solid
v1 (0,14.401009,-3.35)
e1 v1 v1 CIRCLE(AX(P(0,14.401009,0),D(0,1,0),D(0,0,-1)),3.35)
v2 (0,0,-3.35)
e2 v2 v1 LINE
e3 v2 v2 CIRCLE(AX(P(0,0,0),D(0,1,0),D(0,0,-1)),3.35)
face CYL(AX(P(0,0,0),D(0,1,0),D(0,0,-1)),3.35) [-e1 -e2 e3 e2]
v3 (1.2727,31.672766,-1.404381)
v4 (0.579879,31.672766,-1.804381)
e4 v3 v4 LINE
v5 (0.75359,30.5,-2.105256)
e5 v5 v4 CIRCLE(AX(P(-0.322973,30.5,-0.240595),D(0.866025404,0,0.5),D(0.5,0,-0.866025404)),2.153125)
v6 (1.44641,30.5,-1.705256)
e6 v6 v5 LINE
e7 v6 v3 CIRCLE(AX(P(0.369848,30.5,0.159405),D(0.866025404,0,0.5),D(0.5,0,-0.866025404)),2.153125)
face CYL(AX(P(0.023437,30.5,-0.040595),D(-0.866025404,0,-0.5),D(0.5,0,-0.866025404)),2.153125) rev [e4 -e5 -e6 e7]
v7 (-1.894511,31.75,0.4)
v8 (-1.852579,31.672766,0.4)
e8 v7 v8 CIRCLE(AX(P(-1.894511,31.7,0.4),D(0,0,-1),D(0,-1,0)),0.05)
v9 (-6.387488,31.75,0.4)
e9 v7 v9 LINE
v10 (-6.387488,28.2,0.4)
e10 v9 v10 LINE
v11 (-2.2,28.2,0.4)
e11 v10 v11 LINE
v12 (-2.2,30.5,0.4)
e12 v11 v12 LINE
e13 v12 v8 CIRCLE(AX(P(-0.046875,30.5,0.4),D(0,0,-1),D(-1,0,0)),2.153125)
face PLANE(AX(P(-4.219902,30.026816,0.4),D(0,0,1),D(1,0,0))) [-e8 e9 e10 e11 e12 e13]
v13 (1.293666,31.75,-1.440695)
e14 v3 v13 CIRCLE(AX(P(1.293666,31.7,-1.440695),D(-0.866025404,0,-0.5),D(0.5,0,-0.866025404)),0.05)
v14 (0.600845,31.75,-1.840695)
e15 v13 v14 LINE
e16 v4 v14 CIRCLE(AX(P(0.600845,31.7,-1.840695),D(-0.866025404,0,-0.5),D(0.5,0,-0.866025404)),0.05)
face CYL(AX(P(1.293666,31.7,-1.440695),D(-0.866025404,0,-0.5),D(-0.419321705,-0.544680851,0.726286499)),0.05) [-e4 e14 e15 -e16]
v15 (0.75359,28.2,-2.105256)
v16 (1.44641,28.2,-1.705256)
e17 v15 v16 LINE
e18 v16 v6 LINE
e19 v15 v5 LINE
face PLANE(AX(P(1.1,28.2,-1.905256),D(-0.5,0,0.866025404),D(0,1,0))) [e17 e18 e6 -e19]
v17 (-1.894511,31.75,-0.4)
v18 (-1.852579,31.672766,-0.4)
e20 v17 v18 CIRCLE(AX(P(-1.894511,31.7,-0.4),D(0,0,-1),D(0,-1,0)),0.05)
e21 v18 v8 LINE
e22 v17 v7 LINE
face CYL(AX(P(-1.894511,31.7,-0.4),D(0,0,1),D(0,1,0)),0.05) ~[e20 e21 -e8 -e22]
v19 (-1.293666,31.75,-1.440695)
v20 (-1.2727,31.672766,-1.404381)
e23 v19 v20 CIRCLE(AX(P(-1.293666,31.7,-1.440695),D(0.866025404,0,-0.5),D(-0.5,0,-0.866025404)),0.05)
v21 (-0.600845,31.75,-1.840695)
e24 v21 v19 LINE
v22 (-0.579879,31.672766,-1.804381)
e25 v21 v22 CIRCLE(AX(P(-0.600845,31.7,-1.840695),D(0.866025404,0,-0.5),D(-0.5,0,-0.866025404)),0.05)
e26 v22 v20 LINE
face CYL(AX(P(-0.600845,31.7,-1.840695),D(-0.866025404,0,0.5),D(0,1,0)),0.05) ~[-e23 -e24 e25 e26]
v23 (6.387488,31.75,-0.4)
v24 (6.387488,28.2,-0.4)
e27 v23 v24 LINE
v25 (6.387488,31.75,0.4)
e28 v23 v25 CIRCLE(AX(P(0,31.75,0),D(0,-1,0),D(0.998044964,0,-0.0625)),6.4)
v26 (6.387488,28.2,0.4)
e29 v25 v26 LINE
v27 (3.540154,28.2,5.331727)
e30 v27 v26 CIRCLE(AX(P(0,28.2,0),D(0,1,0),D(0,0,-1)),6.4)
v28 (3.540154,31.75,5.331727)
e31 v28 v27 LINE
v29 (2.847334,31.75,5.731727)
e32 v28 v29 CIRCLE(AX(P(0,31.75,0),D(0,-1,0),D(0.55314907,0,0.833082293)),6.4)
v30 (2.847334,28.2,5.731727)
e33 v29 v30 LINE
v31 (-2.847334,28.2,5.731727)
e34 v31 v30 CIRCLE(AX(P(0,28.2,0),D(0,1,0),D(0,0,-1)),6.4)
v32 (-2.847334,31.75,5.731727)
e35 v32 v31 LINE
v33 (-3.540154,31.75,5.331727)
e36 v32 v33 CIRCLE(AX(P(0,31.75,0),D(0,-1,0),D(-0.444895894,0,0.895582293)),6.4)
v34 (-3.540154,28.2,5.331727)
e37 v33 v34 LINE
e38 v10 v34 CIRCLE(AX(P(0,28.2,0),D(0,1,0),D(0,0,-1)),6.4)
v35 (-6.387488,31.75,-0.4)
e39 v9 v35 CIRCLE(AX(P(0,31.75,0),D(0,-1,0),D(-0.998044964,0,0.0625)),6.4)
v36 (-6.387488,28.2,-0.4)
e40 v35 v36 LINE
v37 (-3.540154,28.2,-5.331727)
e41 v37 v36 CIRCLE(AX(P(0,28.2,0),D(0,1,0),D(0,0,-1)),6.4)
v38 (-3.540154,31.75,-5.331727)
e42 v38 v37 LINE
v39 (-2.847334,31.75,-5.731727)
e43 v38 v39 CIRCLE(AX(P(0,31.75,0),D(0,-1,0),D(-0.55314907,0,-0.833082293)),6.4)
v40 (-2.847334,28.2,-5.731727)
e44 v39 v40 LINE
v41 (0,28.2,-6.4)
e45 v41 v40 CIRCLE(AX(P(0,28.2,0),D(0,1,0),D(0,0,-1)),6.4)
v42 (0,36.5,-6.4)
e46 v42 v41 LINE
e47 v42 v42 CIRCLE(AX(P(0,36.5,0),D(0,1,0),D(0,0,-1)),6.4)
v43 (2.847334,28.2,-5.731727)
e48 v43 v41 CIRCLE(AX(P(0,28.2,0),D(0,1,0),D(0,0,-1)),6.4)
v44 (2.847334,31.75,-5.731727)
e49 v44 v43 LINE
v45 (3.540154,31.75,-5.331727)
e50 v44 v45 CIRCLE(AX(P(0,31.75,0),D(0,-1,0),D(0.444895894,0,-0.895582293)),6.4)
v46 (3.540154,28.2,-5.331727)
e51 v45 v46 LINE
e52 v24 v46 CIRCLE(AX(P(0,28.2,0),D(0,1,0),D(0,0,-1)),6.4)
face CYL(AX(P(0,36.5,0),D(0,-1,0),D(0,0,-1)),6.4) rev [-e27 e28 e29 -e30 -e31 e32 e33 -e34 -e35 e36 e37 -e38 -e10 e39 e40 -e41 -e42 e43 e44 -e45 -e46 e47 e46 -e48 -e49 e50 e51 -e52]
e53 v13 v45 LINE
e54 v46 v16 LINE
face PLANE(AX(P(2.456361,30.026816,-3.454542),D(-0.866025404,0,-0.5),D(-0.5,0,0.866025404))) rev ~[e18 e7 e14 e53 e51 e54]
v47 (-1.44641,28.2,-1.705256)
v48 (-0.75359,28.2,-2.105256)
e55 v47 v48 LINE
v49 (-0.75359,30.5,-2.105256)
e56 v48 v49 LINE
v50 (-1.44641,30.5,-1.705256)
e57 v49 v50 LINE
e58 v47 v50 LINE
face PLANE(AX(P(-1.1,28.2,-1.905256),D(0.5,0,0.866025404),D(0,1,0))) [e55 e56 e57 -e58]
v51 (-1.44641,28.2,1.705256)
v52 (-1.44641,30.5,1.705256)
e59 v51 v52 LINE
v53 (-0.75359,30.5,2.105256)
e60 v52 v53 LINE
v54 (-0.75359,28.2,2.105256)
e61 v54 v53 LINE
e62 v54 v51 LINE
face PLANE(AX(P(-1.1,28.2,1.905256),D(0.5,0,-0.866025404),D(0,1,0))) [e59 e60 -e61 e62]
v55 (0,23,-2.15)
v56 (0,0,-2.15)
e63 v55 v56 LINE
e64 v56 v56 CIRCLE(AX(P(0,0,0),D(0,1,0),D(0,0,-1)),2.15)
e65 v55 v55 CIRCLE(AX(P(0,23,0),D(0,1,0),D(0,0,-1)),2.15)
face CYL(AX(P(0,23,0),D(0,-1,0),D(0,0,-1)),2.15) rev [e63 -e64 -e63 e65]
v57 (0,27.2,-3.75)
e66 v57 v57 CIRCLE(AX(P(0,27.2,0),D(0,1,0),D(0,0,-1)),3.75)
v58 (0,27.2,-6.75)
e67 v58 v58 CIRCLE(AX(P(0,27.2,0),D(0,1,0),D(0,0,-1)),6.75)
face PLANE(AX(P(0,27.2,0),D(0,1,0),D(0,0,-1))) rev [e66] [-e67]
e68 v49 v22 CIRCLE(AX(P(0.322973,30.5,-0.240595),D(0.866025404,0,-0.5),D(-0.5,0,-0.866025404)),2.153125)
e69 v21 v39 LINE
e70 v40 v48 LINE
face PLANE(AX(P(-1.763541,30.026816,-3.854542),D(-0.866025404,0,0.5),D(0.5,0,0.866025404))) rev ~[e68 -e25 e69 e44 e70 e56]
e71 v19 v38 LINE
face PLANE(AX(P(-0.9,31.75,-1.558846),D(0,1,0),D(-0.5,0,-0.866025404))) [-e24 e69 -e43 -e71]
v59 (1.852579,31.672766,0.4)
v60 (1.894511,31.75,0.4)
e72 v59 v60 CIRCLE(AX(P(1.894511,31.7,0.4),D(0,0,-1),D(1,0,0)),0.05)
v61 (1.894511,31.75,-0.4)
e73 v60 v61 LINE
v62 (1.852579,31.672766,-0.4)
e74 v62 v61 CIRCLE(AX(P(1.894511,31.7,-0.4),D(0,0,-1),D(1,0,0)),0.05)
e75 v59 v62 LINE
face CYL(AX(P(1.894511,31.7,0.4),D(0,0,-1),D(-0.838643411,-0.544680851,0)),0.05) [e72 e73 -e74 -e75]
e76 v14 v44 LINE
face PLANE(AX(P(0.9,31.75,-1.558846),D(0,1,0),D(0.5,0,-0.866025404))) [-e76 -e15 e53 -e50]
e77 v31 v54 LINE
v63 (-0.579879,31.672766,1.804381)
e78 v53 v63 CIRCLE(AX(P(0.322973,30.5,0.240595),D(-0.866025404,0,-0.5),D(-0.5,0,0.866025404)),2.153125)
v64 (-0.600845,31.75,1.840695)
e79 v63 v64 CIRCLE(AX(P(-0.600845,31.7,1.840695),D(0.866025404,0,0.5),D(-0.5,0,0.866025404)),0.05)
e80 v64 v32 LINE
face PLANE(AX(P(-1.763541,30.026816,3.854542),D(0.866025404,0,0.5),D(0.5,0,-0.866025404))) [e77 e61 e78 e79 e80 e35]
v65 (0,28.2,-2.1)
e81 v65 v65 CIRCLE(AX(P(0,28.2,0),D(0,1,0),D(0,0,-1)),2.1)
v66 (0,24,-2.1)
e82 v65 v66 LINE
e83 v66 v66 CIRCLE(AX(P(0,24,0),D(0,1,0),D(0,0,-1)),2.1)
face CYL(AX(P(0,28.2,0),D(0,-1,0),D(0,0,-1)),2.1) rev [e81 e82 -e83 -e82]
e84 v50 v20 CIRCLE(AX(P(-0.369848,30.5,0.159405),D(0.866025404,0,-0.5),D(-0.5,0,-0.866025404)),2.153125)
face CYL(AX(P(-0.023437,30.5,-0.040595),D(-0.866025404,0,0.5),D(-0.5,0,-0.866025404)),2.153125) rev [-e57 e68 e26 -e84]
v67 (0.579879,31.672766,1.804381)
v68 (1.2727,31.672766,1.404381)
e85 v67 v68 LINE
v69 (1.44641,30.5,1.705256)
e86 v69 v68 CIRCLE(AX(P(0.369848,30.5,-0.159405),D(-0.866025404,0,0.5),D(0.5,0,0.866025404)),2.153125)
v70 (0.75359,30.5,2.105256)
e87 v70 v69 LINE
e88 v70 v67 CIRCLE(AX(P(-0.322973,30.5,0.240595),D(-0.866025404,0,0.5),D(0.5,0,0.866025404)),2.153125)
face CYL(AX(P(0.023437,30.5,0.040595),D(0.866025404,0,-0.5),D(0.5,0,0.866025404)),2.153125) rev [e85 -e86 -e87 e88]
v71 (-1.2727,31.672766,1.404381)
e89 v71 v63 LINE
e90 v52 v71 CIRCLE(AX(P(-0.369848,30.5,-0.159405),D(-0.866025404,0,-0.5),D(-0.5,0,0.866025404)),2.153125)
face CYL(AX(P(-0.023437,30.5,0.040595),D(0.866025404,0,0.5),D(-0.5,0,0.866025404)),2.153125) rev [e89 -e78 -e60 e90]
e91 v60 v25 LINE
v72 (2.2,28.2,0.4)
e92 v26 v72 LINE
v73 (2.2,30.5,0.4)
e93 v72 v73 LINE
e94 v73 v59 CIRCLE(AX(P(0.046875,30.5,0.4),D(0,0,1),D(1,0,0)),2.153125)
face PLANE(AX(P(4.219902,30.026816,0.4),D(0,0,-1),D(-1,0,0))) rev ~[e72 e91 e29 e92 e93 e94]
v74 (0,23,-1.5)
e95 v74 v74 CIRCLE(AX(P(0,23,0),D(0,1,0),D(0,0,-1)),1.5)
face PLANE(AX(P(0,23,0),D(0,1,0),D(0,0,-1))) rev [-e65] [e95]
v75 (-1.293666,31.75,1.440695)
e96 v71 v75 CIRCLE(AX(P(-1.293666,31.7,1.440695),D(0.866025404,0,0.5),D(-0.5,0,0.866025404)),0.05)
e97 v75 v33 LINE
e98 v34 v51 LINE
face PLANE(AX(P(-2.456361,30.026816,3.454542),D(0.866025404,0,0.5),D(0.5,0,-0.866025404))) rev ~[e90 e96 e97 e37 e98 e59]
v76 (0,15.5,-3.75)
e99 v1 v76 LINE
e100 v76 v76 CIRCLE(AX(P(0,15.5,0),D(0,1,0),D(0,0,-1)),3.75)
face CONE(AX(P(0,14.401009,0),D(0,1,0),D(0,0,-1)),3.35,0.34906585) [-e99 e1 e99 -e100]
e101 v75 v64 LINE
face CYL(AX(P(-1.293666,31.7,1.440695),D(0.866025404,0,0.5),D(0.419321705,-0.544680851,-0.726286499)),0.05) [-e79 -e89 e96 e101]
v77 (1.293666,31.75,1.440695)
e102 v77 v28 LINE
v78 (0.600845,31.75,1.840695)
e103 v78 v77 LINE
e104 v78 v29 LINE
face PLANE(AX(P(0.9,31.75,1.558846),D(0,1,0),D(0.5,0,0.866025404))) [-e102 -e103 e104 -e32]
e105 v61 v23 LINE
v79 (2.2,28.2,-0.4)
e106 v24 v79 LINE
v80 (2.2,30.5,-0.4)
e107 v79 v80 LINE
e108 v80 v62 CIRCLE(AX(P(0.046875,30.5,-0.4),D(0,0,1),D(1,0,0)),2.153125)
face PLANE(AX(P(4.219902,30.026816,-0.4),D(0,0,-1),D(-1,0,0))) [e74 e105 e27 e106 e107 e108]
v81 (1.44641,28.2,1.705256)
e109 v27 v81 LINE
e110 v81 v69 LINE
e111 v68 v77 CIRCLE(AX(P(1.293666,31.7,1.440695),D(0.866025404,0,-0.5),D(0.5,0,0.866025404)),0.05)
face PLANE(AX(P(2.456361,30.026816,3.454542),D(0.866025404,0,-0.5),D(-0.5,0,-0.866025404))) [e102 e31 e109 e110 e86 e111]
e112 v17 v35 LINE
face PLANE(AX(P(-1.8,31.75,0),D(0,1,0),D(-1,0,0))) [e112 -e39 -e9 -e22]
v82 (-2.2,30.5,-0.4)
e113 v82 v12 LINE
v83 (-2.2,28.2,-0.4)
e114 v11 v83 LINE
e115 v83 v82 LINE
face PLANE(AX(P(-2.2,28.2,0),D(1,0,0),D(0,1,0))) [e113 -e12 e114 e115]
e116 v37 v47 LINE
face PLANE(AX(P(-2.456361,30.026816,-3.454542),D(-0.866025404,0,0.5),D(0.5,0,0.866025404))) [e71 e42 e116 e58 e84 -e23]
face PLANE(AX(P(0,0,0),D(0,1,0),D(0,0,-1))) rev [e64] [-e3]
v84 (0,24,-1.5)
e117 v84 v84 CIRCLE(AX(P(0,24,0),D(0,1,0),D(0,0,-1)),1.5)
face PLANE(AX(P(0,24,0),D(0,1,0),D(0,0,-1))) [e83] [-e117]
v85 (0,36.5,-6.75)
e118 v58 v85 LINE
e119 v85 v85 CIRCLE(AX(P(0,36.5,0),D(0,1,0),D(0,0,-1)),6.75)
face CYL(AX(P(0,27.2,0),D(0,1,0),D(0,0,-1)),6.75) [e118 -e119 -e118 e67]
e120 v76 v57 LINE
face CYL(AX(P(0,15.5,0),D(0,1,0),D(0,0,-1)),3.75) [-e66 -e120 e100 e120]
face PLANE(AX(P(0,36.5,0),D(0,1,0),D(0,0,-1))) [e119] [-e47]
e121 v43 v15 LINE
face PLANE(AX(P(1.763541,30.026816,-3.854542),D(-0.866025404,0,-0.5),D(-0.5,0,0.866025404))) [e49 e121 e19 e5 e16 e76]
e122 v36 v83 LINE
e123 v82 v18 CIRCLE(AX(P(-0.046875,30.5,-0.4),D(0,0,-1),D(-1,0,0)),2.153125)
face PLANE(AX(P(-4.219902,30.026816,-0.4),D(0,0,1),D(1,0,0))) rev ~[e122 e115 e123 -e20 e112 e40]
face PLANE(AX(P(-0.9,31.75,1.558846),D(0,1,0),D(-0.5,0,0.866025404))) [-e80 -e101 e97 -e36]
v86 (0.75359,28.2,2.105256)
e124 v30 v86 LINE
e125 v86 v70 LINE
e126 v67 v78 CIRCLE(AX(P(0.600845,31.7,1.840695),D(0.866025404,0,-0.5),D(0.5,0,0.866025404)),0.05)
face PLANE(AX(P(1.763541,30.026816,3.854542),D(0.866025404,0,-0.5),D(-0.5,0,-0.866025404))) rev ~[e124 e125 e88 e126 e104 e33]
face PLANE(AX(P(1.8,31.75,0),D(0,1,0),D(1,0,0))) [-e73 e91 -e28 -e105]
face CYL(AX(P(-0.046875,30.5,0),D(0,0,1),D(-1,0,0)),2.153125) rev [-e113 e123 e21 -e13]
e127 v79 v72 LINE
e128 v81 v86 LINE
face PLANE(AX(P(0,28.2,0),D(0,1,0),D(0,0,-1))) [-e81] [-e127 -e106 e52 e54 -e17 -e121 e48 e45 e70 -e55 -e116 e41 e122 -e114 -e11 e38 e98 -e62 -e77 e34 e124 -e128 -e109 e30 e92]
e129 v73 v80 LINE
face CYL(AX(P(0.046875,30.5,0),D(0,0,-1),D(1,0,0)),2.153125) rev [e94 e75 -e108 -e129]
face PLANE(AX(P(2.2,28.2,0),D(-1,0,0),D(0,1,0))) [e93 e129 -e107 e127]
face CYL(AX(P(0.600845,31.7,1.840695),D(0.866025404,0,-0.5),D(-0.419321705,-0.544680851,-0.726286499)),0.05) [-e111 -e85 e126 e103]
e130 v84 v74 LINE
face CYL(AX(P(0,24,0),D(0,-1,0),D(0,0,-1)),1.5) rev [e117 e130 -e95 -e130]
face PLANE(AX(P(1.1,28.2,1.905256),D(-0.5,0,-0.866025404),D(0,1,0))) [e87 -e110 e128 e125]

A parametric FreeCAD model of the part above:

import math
import FreeCAD as App
import Part
import Sketcher

V = App.Vector
Q = App.Units.Quantity


def edges_at(feature, points):
    """Names of the edges that pass closest to the given points."""
    edges = feature.Shape.Edges
    near = lambda p: min(range(len(edges)), key=lambda i: edges[i].distToShape(Part.Vertex(*p))[0])
    return sorted({f"Edge{near(p) + 1}" for p in points})

doc = App.newDocument("Part")
body = doc.addObject("PartDesign::Body", "Body")

sketch1 = doc.addObject("Sketcher::SketchObject", "Sketch")
body.addObject(sketch1)
sketch1.AttachmentSupport = (doc.XY_Plane, [""])
sketch1.MapMode = "FlatFace"
sketch1.addGeometry([
    Part.LineSegment(V(-6.4, 28.2, 0), V(-6.4, 36.5, 0)),
    Part.LineSegment(V(-6.4, 36.5, 0), V(-6.75, 36.5, 0)),
    Part.LineSegment(V(-6.75, 36.5, 0), V(-6.75, 27.2, 0)),
    Part.LineSegment(V(-6.75, 27.2, 0), V(-3.75, 27.2, 0)),
    Part.LineSegment(V(-3.75, 27.2, 0), V(-3.75, 15.5, 0)),
    Part.LineSegment(V(-3.75, 15.5, 0), V(-3.35, 14.401009, 0)),
    Part.LineSegment(V(-3.35, 14.401009, 0), V(-3.35, 0, 0)),
    Part.LineSegment(V(-3.35, 0, 0), V(-2.15, 0, 0)),
    Part.LineSegment(V(-2.15, 0, 0), V(-2.15, 23, 0)),
    Part.LineSegment(V(-2.15, 23, 0), V(-1.5, 23, 0)),
    Part.LineSegment(V(-1.5, 23, 0), V(-1.5, 24, 0)),
    Part.LineSegment(V(-1.5, 24, 0), V(-2.1, 24, 0)),
    Part.LineSegment(V(-2.1, 24, 0), V(-2.1, 28.2, 0)),
    Part.LineSegment(V(-2.1, 28.2, 0), V(-6.4, 28.2, 0)),
], False)
sketch1.addConstraint([
    Sketcher.Constraint("Coincident", 0, 2, 1, 1),
    Sketcher.Constraint("Coincident", 1, 2, 2, 1),
    Sketcher.Constraint("Coincident", 2, 2, 3, 1),
    Sketcher.Constraint("Coincident", 3, 2, 4, 1),
    Sketcher.Constraint("Coincident", 4, 2, 5, 1),
    Sketcher.Constraint("Coincident", 5, 2, 6, 1),
    Sketcher.Constraint("Coincident", 6, 2, 7, 1),
    Sketcher.Constraint("Coincident", 7, 2, 8, 1),
    Sketcher.Constraint("Coincident", 8, 2, 9, 1),
    Sketcher.Constraint("Coincident", 9, 2, 10, 1),
    Sketcher.Constraint("Coincident", 10, 2, 11, 1),
    Sketcher.Constraint("Coincident", 11, 2, 12, 1),
    Sketcher.Constraint("Coincident", 12, 2, 13, 1),
    Sketcher.Constraint("Coincident", 13, 2, 0, 1),
    Sketcher.Constraint("Vertical", 0),
    Sketcher.Constraint("Horizontal", 1),
    Sketcher.Constraint("Vertical", 2),
    Sketcher.Constraint("Horizontal", 3),
    Sketcher.Constraint("Vertical", 4),
    Sketcher.Constraint("Vertical", 6),
    Sketcher.Constraint("Horizontal", 7),
    Sketcher.Constraint("Vertical", 8),
    Sketcher.Constraint("Horizontal", 9),
    Sketcher.Constraint("Vertical", 10),
    Sketcher.Constraint("Horizontal", 11),
    Sketcher.Constraint("Vertical", 12),
    Sketcher.Constraint("Horizontal", 13),
    Sketcher.Constraint("PointOnObject", 6, 2, -1),
    Sketcher.Constraint("DistanceX", 3, 1, 3, 2, Q("3 mm")),
    Sketcher.Constraint("DistanceY", 8, 1, 8, 2, Q("23 mm")),
    Sketcher.Constraint("DistanceY", 10, 1, 10, 2, Q("1 mm")),
    Sketcher.Constraint("Angle", 5, Q("-70 deg")),
    Sketcher.Constraint("DistanceX", 7, 1, 7, 2, Q("1.2 mm")),
    Sketcher.Constraint("DistanceX", 11, 2, 11, 1, Q("0.6 mm")),
    Sketcher.Constraint("DistanceX", 13, 2, 13, 1, Q("4.3 mm")),
    Sketcher.Constraint("DistanceY", 0, 1, 0, 2, Q("8.3 mm")),
    Sketcher.Constraint("DistanceY", 2, 2, 2, 1, Q("9.3 mm")),
    Sketcher.Constraint("DistanceY", 4, 2, 4, 1, Q("11.7 mm")),
    Sketcher.Constraint("DistanceY", 12, 1, 12, 2, Q("4.2 mm")),
    Sketcher.Constraint("DistanceX", 1, 2, 1, 1, Q("0.35 mm")),
    Sketcher.Constraint("DistanceX", 9, 1, 9, 2, Q("0.65 mm")),
    Sketcher.Constraint("DistanceX", 0, 2, -1, 1, Q("6.4 mm")),
])
revolution = doc.addObject("PartDesign::Revolution", "Revolution")
body.addObject(revolution)
revolution.Profile = sketch1
revolution.ReferenceAxis = (sketch1, ["V_Axis"])
revolution.Angle = 360

sketch2 = doc.addObject("Sketcher::SketchObject", "Sketch001")
body.addObject(sketch2)
sketch2.AttachmentSupport = (doc.XY_Plane, [""])
sketch2.MapMode = "FlatFace"
sketch2.addGeometry([
    Part.LineSegment(V(-2.2, 28.2, 0), V(-2.2, 30.5, 0)),
    Part.ArcOfCircle(Part.Circle(V(-0.046875, 30.5, 0), V(0, 0, 1), 2.153125), math.radians(144.510657), math.radians(180)),
    Part.LineSegment(V(-1.8, 31.75, 0), V(-6.4, 31.75, 0)),
    Part.LineSegment(V(-6.4, 31.75, 0), V(-6.4, 28.2, 0)),
    Part.LineSegment(V(-6.4, 28.2, 0), V(-2.2, 28.2, 0)),
], False)
sketch2.addConstraint([
    Sketcher.Constraint("Tangent", 0, 2, 1, 2),
    Sketcher.Constraint("Coincident", 1, 1, 2, 1),
    Sketcher.Constraint("Coincident", 2, 2, 3, 1),
    Sketcher.Constraint("Coincident", 3, 2, 4, 1),
    Sketcher.Constraint("Coincident", 4, 2, 0, 1),
    Sketcher.Constraint("Vertical", 0),
    Sketcher.Constraint("Horizontal", 2),
    Sketcher.Constraint("Vertical", 3),
    Sketcher.Constraint("Horizontal", 4),
    Sketcher.Constraint("DistanceX", 2, 2, 2, 1, Q("4.6 mm")),
    Sketcher.Constraint("DistanceX", 4, 1, 4, 2, Q("4.2 mm")),
    Sketcher.Constraint("DistanceY", 0, 1, 0, 2, Q("2.3 mm")),
    Sketcher.Constraint("DistanceY", 3, 2, 3, 1, Q("3.55 mm")),
    Sketcher.Constraint("DistanceY", -1, 1, 1, 3, Q("30.5 mm")),
    Sketcher.Constraint("DistanceX", 0, 2, -1, 1, Q("2.2 mm")),
])
pad1 = doc.addObject("PartDesign::Pad", "Pad")
body.addObject(pad1)
pad1.Profile = sketch2
pad1.Length = 0.8
pad1.Midplane = True
doc.recompute()

fillet = doc.addObject("PartDesign::Fillet", "Fillet")
body.addObject(fillet)
fillet.Base = (pad1, edges_at(pad1, [(-1.8, 31.75, 0)]))
fillet.Radius = 0.05
doc.recompute()

polarpattern = doc.addObject("PartDesign::PolarPattern", "PolarPattern")
body.addObject(polarpattern)
polarpattern.Originals = [pad1]
polarpattern.Axis = (doc.Y_Axis, [""])
polarpattern.Angle = 360
polarpattern.Occurrences = 6
body.Tip = polarpattern
doc.recompute()

fillet2 = doc.addObject("PartDesign::Fillet", "Fillet001")
body.addObject(fillet2)
fillet2.Base = (polarpattern, edges_at(polarpattern, [
    (-0.9, 31.75, 1.559),
    (0.9, 31.75, 1.559),
    (1.8, 31.75, 0),
    (0.9, 31.75, -1.559),
    (-0.9, 31.75, -1.559),
]))
fillet2.Radius = 0.05

doc.recompute()
